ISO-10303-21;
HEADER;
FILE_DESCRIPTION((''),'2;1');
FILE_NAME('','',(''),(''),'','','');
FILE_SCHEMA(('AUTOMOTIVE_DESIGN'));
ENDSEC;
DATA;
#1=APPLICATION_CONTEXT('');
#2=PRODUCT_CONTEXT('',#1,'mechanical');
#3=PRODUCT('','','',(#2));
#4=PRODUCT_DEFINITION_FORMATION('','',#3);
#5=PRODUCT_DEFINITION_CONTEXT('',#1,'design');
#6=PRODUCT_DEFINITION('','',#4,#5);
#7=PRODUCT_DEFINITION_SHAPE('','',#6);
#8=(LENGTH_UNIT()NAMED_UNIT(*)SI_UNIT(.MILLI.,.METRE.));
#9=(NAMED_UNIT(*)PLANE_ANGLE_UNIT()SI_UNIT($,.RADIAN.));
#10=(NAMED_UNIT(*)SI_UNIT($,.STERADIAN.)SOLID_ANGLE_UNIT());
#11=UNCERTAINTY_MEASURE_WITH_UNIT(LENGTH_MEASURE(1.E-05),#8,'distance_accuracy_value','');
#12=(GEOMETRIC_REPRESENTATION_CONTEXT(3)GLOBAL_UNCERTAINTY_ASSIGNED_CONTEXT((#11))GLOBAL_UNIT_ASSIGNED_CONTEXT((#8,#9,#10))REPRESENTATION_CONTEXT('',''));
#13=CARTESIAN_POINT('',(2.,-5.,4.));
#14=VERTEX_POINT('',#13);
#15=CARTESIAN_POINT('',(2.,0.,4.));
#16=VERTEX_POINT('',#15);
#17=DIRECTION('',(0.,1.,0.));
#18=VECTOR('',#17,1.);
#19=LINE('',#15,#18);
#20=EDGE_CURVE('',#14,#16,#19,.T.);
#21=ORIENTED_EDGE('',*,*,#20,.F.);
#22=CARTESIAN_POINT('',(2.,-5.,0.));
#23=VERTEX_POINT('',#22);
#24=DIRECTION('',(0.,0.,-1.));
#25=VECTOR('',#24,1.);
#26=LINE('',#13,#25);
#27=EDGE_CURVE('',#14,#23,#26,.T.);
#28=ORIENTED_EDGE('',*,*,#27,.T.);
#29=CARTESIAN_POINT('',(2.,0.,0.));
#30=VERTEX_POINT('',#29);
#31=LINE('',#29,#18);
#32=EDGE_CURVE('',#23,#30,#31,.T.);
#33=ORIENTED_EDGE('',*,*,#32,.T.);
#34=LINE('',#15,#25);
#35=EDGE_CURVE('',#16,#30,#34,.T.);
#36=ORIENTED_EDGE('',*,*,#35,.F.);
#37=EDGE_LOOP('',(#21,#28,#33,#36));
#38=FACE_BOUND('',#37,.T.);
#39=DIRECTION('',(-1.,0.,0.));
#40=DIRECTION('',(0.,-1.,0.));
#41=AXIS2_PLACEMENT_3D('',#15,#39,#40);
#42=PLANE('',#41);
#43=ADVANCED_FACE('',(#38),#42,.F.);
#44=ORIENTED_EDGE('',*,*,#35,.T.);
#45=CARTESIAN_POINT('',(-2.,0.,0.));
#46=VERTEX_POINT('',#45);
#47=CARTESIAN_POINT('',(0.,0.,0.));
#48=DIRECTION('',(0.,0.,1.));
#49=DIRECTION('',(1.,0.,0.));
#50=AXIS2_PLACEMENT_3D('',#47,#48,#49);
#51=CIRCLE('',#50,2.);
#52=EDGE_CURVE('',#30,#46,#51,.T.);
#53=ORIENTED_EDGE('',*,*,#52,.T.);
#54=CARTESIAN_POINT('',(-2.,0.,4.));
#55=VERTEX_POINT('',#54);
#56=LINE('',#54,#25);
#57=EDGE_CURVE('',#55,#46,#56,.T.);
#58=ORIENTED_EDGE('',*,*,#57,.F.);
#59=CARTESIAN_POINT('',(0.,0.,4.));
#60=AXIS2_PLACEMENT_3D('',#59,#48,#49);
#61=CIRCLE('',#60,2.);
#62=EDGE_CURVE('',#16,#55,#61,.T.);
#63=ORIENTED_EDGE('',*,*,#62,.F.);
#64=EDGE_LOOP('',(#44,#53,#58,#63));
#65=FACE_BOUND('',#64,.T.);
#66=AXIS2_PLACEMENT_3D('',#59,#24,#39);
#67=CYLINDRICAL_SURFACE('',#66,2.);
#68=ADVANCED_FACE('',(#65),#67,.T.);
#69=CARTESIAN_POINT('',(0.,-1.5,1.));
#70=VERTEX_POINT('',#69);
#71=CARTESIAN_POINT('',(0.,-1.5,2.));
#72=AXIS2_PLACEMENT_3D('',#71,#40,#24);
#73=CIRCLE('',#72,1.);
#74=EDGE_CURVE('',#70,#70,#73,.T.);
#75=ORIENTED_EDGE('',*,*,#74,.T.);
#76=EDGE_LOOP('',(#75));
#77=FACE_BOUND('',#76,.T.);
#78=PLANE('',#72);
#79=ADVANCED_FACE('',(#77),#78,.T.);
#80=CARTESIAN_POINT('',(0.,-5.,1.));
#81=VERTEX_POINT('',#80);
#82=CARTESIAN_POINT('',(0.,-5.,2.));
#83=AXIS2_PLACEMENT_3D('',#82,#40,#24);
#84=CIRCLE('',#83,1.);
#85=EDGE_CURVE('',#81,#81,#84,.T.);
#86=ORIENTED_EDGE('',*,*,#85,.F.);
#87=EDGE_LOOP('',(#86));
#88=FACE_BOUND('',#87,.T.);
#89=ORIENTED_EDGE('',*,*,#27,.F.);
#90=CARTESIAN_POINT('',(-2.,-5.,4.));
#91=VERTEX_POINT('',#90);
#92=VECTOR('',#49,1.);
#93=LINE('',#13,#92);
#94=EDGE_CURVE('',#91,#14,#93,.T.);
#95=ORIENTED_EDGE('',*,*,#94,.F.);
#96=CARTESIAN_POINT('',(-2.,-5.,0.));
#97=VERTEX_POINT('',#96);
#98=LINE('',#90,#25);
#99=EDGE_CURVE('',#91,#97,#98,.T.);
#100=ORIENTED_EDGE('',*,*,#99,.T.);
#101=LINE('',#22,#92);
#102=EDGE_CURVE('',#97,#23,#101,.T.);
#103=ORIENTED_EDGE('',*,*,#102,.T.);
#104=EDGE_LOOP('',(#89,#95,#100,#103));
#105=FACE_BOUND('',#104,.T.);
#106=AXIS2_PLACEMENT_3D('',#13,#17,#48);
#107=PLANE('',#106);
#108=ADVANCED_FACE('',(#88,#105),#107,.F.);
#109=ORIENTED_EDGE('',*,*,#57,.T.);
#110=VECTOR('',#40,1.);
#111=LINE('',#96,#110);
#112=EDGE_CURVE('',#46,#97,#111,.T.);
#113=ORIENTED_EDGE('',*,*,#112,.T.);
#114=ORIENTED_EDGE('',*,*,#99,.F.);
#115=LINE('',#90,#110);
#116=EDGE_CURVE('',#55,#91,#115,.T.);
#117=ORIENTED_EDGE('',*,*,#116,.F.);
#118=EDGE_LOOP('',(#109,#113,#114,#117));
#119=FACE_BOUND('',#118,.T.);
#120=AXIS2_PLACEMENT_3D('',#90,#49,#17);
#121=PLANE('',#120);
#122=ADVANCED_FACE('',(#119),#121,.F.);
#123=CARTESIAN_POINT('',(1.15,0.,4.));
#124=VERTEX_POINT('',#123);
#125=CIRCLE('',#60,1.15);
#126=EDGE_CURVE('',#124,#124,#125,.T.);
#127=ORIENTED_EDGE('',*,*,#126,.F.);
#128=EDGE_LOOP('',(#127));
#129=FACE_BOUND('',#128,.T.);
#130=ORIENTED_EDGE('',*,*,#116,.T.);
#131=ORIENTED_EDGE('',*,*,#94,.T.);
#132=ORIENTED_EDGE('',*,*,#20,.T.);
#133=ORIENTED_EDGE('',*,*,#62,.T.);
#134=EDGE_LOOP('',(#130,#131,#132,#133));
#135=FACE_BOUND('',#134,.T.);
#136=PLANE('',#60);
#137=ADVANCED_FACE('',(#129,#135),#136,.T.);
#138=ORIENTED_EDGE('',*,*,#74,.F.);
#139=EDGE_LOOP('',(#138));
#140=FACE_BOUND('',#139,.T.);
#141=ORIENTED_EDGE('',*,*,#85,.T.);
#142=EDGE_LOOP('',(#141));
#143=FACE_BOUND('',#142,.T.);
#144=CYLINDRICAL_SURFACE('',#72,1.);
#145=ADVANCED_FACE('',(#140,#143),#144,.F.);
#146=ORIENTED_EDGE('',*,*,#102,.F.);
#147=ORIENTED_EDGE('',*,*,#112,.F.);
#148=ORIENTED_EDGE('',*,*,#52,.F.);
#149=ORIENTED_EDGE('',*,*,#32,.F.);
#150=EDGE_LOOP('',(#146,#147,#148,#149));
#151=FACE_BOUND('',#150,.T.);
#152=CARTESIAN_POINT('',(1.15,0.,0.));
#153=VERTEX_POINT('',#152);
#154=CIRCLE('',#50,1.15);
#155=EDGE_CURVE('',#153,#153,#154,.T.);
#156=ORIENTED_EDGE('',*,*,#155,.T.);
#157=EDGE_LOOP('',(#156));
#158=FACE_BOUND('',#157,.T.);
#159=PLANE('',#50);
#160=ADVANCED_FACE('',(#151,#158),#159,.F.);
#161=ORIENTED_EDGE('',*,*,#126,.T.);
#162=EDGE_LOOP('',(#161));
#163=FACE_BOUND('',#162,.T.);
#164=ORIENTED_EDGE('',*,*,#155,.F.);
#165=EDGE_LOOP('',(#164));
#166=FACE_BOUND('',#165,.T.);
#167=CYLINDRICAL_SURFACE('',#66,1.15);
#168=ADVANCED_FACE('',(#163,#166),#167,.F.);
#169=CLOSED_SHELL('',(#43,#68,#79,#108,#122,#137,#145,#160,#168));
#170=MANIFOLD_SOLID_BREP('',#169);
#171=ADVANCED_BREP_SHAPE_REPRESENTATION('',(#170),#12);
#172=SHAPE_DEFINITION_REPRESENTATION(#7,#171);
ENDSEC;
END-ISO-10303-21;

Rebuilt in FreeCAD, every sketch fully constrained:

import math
import FreeCAD as App
import Part
import Sketcher

V = App.Vector
Q = App.Units.Quantity

doc = App.newDocument("Part")
body = doc.addObject("PartDesign::Body", "Body")

# Sketch on XY plane
sketch1 = doc.addObject("Sketcher::SketchObject", "Sketch")
body.addObject(sketch1)
sketch1.AttachmentSupport = (doc.XY_Plane, [""])
sketch1.MapMode = "FlatFace"
sketch1.addGeometry(Part.LineSegment(V(2, -5, 0), V(2, 0, 0)), False)
sketch1.addGeometry(Part.ArcOfCircle(Part.Circle(V(0, 0, 0), V(0, 0, 1), 2), math.radians(0), math.radians(180)), False)
sketch1.addGeometry(Part.LineSegment(V(-2, 0, 0), V(-2, -5, 0)), False)
sketch1.addGeometry(Part.LineSegment(V(-2, -5, 0), V(2, -5, 0)), False)
sketch1.addGeometry(Part.Circle(V(0, 0, 0), V(0, 0, 1), 1.1), False)
sketch1.addConstraint(Sketcher.Constraint("Tangent", 0, 2, 1, 1))
sketch1.addConstraint(Sketcher.Constraint("Tangent", 1, 2, 2, 1))
sketch1.addConstraint(Sketcher.Constraint("Coincident", 2, 2, 3, 1))
sketch1.addConstraint(Sketcher.Constraint("Coincident", 3, 2, 0, 1))
sketch1.addConstraint(Sketcher.Constraint("Vertical", 0))
sketch1.addConstraint(Sketcher.Constraint("Vertical", 2))
sketch1.addConstraint(Sketcher.Constraint("Horizontal", 3))
sketch1.addConstraint(Sketcher.Constraint("Coincident", 1, 3, -1, 1))
sketch1.addConstraint(Sketcher.Constraint("Coincident", 4, 3, -1, 1))
sketch1.addConstraint(Sketcher.Constraint("Radius", 1, Q("2 mm")))
sketch1.addConstraint(Sketcher.Constraint("Diameter", 4, Q("2.3 mm")))
sketch1.addConstraint(Sketcher.Constraint("DistanceY", 0, 1, 0, 2, Q("5 mm")))
pad1 = doc.addObject("PartDesign::Pad", "Pad")
body.addObject(pad1)
pad1.Profile = sketch1
pad1.Length = 4

# Sketch on XZ plane
sketch2 = doc.addObject("Sketcher::SketchObject", "Sketch001")
body.addObject(sketch2)
sketch2.AttachmentSupport = (doc.XZ_Plane, [""])
sketch2.MapMode = "FlatFace"
sketch2.AttachmentOffset = App.Placement(V(0, 0, 5), App.Rotation())
sketch2.addGeometry(Part.Circle(V(0, 2, 0), V(0, 0, 1), 1), False)
sketch2.addConstraint(Sketcher.Constraint("PointOnObject", 0, 3, -2))
sketch2.addConstraint(Sketcher.Constraint("Diameter", 0, Q("2 mm")))
sketch2.addConstraint(Sketcher.Constraint("DistanceY", -1, 1, 0, 3, Q("2 mm")))
pocket1 = doc.addObject("PartDesign::Pocket", "Pocket")
body.addObject(pocket1)
pocket1.Profile = sketch2
pocket1.Length = 3.5

doc.recompute()
